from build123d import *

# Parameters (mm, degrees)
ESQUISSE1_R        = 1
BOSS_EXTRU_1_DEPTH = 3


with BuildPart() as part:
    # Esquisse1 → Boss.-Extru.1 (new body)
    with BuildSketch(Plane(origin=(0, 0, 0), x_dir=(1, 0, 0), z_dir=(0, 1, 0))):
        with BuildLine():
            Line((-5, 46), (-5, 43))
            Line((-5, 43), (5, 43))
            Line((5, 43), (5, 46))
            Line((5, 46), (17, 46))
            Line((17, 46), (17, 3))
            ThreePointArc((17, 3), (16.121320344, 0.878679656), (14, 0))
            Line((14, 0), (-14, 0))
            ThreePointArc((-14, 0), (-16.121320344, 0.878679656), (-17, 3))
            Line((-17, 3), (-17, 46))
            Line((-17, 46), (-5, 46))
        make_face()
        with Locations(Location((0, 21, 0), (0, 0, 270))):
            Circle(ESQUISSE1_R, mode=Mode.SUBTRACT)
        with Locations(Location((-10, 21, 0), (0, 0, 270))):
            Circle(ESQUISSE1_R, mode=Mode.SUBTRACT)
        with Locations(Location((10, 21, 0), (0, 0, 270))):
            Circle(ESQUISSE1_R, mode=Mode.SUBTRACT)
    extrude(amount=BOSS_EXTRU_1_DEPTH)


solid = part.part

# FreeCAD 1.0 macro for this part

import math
import FreeCAD as App
import Part
import Sketcher

V = App.Vector
Q = App.Units.Quantity

doc = App.newDocument("Part")
body = doc.addObject("PartDesign::Body", "Body")

sketch1 = doc.addObject("Sketcher::SketchObject", "Sketch")
body.addObject(sketch1)
sketch1.AttachmentSupport = (doc.XZ_Plane, [""])
sketch1.MapMode = "FlatFace"
sketch1.addGeometry([
    Part.LineSegment(V(-5, -43, 0), V(-5, -46, 0)),
    Part.LineSegment(V(-5, -46, 0), V(-17, -46, 0)),
    Part.LineSegment(V(-17, -46, 0), V(-17, -3, 0)),
    Part.ArcOfCircle(Part.Circle(V(-14, -3, 0), V(0, 0, 1), 3), math.radians(90), math.radians(180)),
    Part.LineSegment(V(-14, 0, 0), V(14, 0, 0)),
    Part.ArcOfCircle(Part.Circle(V(14, -3, 0), V(0, 0, 1), 3), math.radians(0), math.radians(90)),
    Part.LineSegment(V(17, -3, 0), V(17, -46, 0)),
    Part.LineSegment(V(17, -46, 0), V(5, -46, 0)),
    Part.LineSegment(V(5, -46, 0), V(5, -43, 0)),
    Part.LineSegment(V(5, -43, 0), V(-5, -43, 0)),
    Part.Circle(V(10, -21, 0), V(0, 0, 1), 1),
    Part.Circle(V(0, -21, 0), V(0, 0, 1), 1),
    Part.Circle(V(-10, -21, 0), V(0, 0, 1), 1),
], False)
sketch1.addConstraint([
    Sketcher.Constraint("Coincident", 0, 2, 1, 1),
    Sketcher.Constraint("Coincident", 1, 2, 2, 1),
    Sketcher.Constraint("Tangent", 2, 2, 3, 2),
    Sketcher.Constraint("Tangent", 3, 1, 4, 1),
    Sketcher.Constraint("Tangent", 4, 2, 5, 2),
    Sketcher.Constraint("Tangent", 5, 1, 6, 1),
    Sketcher.Constraint("Coincident", 6, 2, 7, 1),
    Sketcher.Constraint("Coincident", 7, 2, 8, 1),
    Sketcher.Constraint("Coincident", 8, 2, 9, 1),
    Sketcher.Constraint("Coincident", 9, 2, 0, 1),
    Sketcher.Constraint("Vertical", 0),
    Sketcher.Constraint("Horizontal", 1),
    Sketcher.Constraint("Vertical", 2),
    Sketcher.Constraint("Horizontal", 4),
    Sketcher.Constraint("Vertical", 6),
    Sketcher.Constraint("Horizontal", 7),
    Sketcher.Constraint("Vertical", 8),
    Sketcher.Constraint("Horizontal", 9),
    Sketcher.Constraint("Equal", 3, 5),
    Sketcher.Constraint("Equal", 10, 11),
    Sketcher.Constraint("Equal", 11, 12),
    Sketcher.Constraint("Symmetric", 3, 1, 4, 2, -1, 1),
    Sketcher.Constraint("Symmetric", 10, 3, 12, 3, -2),
    Sketcher.Constraint("Symmetric", 0, 2, 7, 2, -2),
    Sketcher.Constraint("PointOnObject", 11, 3, -2),
    Sketcher.Constraint("Horizontal", 10, 3, 11, 3),
    Sketcher.Constraint("Diameter", 10, Q("2 mm")),
    Sketcher.Constraint("Radius", 3, Q("3 mm")),
    Sketcher.Constraint("DistanceX", 1, 2, 1, 1, Q("12 mm")),
    Sketcher.Constraint("DistanceX", 4, 1, 4, 2, Q("28 mm")),
    Sketcher.Constraint("DistanceY", 0, 2, 0, 1, Q("3 mm")),
    Sketcher.Constraint("DistanceY", 2, 1, 2, 2, Q("43 mm")),
    Sketcher.Constraint("DistanceX", -1, 1, 10, 3, Q("10 mm")),
    Sketcher.Constraint("DistanceY", 10, 3, -1, 1, Q("21 mm")),
])
pad1 = doc.addObject("PartDesign::Pad", "Pad")
body.addObject(pad1)
pad1.Profile = sketch1
pad1.Length = 3
pad1.Reversed = True

doc.recompute()
